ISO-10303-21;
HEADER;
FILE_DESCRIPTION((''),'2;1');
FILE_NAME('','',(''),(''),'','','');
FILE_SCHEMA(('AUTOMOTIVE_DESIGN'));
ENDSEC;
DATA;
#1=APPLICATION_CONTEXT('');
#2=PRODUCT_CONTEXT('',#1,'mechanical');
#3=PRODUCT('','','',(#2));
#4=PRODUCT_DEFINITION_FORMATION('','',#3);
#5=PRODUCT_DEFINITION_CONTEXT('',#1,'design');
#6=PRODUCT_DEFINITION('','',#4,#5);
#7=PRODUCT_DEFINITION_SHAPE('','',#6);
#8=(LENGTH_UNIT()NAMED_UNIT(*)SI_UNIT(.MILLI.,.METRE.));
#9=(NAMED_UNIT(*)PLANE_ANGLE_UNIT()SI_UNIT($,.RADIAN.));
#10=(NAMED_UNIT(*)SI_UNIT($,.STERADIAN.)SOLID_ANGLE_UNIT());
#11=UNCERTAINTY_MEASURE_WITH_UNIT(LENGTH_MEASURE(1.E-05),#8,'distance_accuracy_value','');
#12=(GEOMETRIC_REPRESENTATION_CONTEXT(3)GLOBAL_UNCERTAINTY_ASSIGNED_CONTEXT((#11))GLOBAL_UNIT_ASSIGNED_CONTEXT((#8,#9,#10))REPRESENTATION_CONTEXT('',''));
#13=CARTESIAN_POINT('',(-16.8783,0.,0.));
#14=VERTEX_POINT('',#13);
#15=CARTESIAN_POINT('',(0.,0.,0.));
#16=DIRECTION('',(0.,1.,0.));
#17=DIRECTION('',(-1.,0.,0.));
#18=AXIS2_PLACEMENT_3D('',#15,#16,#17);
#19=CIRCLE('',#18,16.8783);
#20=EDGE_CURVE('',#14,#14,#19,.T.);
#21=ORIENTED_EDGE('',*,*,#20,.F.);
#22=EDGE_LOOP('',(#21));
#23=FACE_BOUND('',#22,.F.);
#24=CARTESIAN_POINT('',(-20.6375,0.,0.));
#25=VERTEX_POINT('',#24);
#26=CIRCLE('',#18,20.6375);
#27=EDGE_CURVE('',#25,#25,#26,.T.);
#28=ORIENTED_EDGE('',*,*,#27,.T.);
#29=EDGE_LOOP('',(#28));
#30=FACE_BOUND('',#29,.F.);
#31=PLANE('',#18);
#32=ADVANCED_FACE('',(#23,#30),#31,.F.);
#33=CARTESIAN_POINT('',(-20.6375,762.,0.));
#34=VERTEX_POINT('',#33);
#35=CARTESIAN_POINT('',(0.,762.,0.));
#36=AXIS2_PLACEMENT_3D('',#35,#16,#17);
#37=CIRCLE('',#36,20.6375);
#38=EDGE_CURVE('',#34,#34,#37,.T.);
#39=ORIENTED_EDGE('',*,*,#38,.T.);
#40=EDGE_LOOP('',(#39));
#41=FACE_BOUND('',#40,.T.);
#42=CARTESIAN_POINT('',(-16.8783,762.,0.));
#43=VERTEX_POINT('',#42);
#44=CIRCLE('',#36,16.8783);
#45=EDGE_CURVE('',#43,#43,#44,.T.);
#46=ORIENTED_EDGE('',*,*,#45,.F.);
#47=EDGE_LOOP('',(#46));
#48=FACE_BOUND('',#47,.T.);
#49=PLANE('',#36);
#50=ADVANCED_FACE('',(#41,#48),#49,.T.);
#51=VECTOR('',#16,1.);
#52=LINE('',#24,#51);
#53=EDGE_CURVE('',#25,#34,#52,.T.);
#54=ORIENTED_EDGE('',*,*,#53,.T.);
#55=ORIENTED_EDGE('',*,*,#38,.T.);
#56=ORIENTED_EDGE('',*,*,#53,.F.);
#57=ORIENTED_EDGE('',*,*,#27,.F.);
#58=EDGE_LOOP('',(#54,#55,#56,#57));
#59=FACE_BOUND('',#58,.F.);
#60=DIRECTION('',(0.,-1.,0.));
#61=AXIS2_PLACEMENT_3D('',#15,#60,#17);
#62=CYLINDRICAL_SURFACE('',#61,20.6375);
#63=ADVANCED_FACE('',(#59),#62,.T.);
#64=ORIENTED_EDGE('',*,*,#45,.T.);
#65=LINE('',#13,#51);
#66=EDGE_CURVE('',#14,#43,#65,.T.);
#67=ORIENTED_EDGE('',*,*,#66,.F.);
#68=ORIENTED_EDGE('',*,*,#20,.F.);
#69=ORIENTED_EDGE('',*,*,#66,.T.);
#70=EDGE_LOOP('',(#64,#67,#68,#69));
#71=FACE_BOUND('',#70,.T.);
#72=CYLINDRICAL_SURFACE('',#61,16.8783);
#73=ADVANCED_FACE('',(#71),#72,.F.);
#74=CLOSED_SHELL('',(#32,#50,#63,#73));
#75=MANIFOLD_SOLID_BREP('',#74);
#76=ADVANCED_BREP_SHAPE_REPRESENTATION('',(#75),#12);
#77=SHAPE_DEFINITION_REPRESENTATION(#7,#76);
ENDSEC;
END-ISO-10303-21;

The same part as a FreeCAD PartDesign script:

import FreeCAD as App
import Part
import Sketcher
from FreeCAD import Vector
Q = App.Units.Quantity

doc = App.newDocument("Part")
params = doc.addObject("Spreadsheet::Sheet", "Params")
for row, (alias, value) in enumerate([
    ("sketch1_diameter", "1.625 in"),
    ("sketch1_diameter2", "1.329 in"),
    ("pad1_length", "30 in"),
], start=1):
    params.set(f"A{row}", alias)
    params.set(f"B{row}", "=" + value)
    params.setAlias(f"B{row}", alias)

body = doc.addObject("PartDesign::Body", "Body")

sketch1 = body.newObject("Sketcher::SketchObject", "Sketch")
sketch1.AttachmentSupport = (doc.getObject("XZ_Plane"), [""])
sketch1.MapMode = "FlatFace"
sketch1.addGeometry([
    Part.Circle(Vector(0, 0, 0), Vector(0, 0, 1), 21),
    Part.Circle(Vector(0, 0, 0), Vector(0, 0, 1), 17),
], False)
sketch1.addConstraint([
    Sketcher.Constraint("Coincident", 0, 3, -1, 1),
    Sketcher.Constraint("Coincident", 1, 3, -1, 1),
    Sketcher.Constraint("Diameter", 0, Q("1.625 in")),
    Sketcher.Constraint("Diameter", 1, Q("1.329 in")),
])
sketch1.setExpression("Constraints[2]", "Params.sketch1_diameter")
sketch1.setExpression("Constraints[3]", "Params.sketch1_diameter2")
pad1 = body.newObject("PartDesign::Pad", "Pad")
pad1.Profile = sketch1
pad1.setExpression("Length", "Params.pad1_length")
pad1.Reversed = True

doc.recompute()
